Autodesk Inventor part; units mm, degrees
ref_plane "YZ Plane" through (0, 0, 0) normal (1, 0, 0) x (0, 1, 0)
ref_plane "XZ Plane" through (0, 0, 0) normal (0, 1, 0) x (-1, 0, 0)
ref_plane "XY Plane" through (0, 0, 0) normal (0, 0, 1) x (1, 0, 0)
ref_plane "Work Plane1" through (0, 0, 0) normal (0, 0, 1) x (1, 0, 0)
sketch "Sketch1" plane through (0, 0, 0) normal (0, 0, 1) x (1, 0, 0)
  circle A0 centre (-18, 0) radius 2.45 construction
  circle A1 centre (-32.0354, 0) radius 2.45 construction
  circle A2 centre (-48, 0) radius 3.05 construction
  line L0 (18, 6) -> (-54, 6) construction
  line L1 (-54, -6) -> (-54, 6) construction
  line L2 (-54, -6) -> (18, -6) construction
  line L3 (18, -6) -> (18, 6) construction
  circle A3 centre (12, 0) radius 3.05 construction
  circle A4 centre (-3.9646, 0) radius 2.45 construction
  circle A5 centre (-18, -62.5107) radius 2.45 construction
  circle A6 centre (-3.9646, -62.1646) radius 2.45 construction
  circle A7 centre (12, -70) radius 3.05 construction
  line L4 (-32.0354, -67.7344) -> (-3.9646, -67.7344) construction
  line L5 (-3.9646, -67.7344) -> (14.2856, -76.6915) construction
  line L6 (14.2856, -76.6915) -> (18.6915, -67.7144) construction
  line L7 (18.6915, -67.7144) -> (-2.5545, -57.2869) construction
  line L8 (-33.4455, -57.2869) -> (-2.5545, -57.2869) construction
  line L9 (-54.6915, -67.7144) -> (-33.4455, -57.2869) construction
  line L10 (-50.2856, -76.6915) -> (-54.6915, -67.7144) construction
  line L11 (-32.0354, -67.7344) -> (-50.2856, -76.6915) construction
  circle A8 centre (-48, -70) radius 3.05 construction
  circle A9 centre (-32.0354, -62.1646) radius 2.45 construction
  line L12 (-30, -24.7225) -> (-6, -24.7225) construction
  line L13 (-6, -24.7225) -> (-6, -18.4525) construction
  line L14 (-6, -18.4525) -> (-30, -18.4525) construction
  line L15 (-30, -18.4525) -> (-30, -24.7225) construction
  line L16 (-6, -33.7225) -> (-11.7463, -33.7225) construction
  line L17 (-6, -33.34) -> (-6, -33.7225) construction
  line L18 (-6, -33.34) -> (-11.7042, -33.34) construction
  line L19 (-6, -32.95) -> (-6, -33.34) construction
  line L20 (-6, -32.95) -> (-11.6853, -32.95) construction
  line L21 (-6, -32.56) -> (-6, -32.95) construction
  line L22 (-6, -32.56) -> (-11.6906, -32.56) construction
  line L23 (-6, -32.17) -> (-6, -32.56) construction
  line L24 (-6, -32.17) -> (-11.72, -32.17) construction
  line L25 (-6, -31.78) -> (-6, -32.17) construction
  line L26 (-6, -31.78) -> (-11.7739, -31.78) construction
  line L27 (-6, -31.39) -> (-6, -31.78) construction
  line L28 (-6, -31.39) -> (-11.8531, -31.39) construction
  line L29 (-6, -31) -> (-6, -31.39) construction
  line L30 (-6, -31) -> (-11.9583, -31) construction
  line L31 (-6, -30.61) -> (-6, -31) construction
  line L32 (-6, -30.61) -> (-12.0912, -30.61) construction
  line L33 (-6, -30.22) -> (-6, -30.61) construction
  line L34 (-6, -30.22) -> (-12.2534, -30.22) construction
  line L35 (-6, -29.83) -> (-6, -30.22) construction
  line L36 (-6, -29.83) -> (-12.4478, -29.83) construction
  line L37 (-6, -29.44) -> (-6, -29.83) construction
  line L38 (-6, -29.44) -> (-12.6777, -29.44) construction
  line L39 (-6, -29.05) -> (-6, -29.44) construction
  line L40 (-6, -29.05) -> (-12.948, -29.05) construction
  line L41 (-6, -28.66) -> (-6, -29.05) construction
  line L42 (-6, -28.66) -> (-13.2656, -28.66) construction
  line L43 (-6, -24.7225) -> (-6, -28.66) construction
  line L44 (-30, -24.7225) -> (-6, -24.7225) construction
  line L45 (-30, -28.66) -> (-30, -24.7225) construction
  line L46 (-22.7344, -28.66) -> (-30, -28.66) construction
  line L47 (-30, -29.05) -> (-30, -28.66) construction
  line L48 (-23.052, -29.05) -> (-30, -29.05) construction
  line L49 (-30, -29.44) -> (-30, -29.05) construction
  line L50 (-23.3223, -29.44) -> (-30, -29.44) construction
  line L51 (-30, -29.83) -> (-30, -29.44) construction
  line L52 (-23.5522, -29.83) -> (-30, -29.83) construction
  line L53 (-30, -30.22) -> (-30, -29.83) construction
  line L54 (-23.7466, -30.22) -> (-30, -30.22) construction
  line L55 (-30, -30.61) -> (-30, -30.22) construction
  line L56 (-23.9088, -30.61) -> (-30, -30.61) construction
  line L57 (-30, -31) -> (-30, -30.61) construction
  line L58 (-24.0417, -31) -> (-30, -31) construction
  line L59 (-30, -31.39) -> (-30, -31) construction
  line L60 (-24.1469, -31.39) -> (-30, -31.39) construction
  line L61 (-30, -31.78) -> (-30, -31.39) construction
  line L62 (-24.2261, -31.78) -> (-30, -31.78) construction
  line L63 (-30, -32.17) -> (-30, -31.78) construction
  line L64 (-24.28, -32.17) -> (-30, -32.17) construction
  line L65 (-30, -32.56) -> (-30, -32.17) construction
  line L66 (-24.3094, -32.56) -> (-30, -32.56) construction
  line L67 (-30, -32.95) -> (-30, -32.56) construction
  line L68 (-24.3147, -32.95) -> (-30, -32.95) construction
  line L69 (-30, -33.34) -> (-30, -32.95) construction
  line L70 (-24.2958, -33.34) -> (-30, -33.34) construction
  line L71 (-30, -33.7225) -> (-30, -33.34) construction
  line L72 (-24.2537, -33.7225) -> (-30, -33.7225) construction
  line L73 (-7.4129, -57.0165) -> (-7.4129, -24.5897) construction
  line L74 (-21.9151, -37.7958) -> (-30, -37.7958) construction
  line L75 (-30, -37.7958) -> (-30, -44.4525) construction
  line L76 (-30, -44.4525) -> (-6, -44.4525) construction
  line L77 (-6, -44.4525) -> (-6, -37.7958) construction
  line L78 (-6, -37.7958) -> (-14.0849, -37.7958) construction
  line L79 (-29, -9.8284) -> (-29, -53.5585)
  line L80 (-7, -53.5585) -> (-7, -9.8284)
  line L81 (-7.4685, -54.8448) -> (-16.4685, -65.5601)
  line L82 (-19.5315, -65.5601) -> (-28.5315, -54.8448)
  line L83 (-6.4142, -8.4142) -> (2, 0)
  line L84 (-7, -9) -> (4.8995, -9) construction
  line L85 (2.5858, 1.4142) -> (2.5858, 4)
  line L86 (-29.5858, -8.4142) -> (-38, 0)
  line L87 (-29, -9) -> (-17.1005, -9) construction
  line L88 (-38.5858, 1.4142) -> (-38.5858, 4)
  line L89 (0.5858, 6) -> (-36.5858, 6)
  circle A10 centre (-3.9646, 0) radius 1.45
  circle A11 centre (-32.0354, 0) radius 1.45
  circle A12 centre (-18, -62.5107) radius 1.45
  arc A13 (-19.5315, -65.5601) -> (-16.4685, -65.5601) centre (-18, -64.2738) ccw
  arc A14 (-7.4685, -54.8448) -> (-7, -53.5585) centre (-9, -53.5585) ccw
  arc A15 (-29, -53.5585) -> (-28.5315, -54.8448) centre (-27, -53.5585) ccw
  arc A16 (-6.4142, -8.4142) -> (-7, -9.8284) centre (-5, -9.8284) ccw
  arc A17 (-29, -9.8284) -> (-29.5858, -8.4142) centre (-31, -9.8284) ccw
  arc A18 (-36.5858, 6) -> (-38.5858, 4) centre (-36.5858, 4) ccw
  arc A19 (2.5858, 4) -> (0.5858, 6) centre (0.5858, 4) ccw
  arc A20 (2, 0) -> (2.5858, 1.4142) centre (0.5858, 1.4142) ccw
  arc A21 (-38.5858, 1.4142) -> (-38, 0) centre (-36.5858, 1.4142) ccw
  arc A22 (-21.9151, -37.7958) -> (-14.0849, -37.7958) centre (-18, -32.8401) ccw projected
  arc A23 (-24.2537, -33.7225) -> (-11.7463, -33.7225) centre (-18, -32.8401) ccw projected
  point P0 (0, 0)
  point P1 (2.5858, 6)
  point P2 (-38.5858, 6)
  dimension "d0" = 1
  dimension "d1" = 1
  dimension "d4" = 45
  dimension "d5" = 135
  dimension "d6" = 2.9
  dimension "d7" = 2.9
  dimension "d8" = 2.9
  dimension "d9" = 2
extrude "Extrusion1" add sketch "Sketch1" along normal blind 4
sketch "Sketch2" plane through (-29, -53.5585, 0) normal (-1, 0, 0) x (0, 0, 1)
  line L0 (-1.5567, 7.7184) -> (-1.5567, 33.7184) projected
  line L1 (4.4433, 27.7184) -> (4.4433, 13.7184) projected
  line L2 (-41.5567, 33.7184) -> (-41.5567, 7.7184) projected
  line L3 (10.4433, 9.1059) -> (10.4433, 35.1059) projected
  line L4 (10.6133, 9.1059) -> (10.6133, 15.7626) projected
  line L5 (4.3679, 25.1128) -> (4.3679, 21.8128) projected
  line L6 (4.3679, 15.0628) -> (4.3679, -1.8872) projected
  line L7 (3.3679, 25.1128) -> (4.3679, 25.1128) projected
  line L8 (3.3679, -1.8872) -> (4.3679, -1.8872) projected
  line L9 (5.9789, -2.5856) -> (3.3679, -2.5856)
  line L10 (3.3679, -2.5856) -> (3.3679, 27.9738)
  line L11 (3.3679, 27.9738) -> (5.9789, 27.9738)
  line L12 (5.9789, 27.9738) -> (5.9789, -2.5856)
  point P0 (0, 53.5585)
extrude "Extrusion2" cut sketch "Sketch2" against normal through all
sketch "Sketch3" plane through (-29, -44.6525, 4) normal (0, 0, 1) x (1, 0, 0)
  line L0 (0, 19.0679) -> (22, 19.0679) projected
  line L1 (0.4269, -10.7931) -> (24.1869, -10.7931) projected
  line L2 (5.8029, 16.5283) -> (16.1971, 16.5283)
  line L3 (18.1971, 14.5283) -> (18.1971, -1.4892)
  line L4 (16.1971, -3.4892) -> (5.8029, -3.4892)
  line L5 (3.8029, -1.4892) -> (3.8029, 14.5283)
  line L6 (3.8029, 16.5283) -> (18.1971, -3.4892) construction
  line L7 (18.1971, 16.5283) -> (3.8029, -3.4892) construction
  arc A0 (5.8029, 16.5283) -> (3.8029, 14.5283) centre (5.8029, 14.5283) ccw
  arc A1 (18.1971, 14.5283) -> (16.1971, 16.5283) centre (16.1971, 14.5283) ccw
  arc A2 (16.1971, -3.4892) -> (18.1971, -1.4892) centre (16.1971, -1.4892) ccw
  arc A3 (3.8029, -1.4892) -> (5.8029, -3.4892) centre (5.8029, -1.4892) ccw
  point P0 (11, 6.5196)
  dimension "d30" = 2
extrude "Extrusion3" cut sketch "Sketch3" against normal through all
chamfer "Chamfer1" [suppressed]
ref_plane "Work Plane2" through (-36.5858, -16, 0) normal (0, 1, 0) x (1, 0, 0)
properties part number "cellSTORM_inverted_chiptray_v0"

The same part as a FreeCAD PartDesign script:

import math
import FreeCAD as App
import Part
import Sketcher
from FreeCAD import Vector


def add_polygon(sketch, points):
    """Adds a closed chain of lines whose ends are joined by coincident constraints."""
    first, n = sketch.GeometryCount, len(points)
    for a, b in zip(points, points[1:] + points[:1]):
        sketch.addGeometry(Part.LineSegment(App.Vector(*a, 0), App.Vector(*b, 0)), False)
    for i in range(n):
        sketch.addConstraint(Sketcher.Constraint("Coincident", first + i, 2, first + (i + 1) % n, 1))

doc = App.newDocument("Part")
body = doc.addObject("PartDesign::Body", "Body")

sketch1 = doc.addObject("Sketcher::SketchObject", "Sketch")
body.addObject(sketch1)
sketch1.AttachmentSupport = (doc.XY_Plane, [""])
sketch1.MapMode = "FlatFace"
sketch1.addGeometry([
    Part.ArcOfCircle(Part.Circle(Vector(-31, -9.8, 0), Vector(0, 0, 1), 2), math.radians(0), math.radians(45)),
    Part.LineSegment(Vector(-29, -9.8, 0), Vector(-29, -53.6, 0)),
    Part.ArcOfCircle(Part.Circle(Vector(-27, -53.6, 0), Vector(0, 0, 1), 2), math.radians(180), math.radians(220)),
    Part.LineSegment(Vector(-28.5, -54.8, 0), Vector(-19.5, -65.6, 0)),
    Part.ArcOfCircle(Part.Circle(Vector(-18, -64.3, 0), Vector(0, 0, 1), 2), math.radians(-140), math.radians(-40)),
    Part.LineSegment(Vector(-16.5, -65.6, 0), Vector(-7.5, -54.8, 0)),
    Part.ArcOfCircle(Part.Circle(Vector(-9, -53.6, 0), Vector(0, 0, 1), 2), math.radians(-40), math.radians(0)),
    Part.LineSegment(Vector(-7, -53.6, 0), Vector(-7, -9.8, 0)),
    Part.ArcOfCircle(Part.Circle(Vector(-5, -9.8, 0), Vector(0, 0, 1), 2), math.radians(135), math.radians(180)),
    Part.LineSegment(Vector(-6.4, -8.4, 0), Vector(2, 0, 0)),
    Part.ArcOfCircle(Part.Circle(Vector(0.6, 1.4, 0), Vector(0, 0, 1), 2), math.radians(-45), math.radians(0)),
    Part.LineSegment(Vector(2.6, 1.4, 0), Vector(2.6, 4, 0)),
    Part.ArcOfCircle(Part.Circle(Vector(0.6, 4, 0), Vector(0, 0, 1), 2), math.radians(0), math.radians(90)),
    Part.LineSegment(Vector(0.6, 6, 0), Vector(-36.6, 6, 0)),
    Part.ArcOfCircle(Part.Circle(Vector(-36.6, 4, 0), Vector(0, 0, 1), 2), math.radians(90), math.radians(180)),
    Part.LineSegment(Vector(-38.6, 4, 0), Vector(-38.6, 1.4, 0)),
    Part.ArcOfCircle(Part.Circle(Vector(-36.6, 1.4, 0), Vector(0, 0, 1), 2), math.radians(180), math.radians(225)),
    Part.LineSegment(Vector(-38, 0, 0), Vector(-29.6, -8.4, 0)),
    Part.Circle(Vector(-18, -62.5, 0), Vector(0, 0, 1), 1.4),
    Part.Circle(Vector(-32, 0, 0), Vector(0, 0, 1), 1.4),
    Part.Circle(Vector(-4, 0, 0), Vector(0, 0, 1), 1.4),
], False)
sketch1.addConstraint([
    Sketcher.Constraint("Tangent", 0, 1, 1, 1),
    Sketcher.Constraint("Tangent", 1, 2, 2, 1),
    Sketcher.Constraint("Tangent", 2, 2, 3, 1),
    Sketcher.Constraint("Tangent", 3, 2, 4, 1),
    Sketcher.Constraint("Tangent", 4, 2, 5, 1),
    Sketcher.Constraint("Tangent", 5, 2, 6, 1),
    Sketcher.Constraint("Tangent", 6, 2, 7, 1),
    Sketcher.Constraint("Tangent", 7, 2, 8, 2),
    Sketcher.Constraint("Tangent", 8, 1, 9, 1),
    Sketcher.Constraint("Tangent", 9, 2, 10, 1),
    Sketcher.Constraint("Tangent", 10, 2, 11, 1),
    Sketcher.Constraint("Tangent", 11, 2, 12, 1),
    Sketcher.Constraint("Tangent", 12, 2, 13, 1),
    Sketcher.Constraint("Tangent", 13, 2, 14, 1),
    Sketcher.Constraint("Tangent", 14, 2, 15, 1),
    Sketcher.Constraint("Tangent", 15, 2, 16, 1),
    Sketcher.Constraint("Tangent", 16, 2, 17, 1),
    Sketcher.Constraint("Tangent", 17, 2, 0, 2),
    Sketcher.Constraint("Vertical", 1),
    Sketcher.Constraint("Vertical", 7),
    Sketcher.Constraint("Vertical", 11),
    Sketcher.Constraint("Horizontal", 13),
    Sketcher.Constraint("Vertical", 15),
    Sketcher.Constraint("Equal", 0, 2),
    Sketcher.Constraint("Equal", 2, 4),
    Sketcher.Constraint("Equal", 4, 6),
    Sketcher.Constraint("Equal", 6, 8),
    Sketcher.Constraint("Equal", 8, 10),
    Sketcher.Constraint("Equal", 10, 12),
    Sketcher.Constraint("Equal", 12, 14),
    Sketcher.Constraint("Equal", 14, 16),
    Sketcher.Constraint("Equal", 18, 19),
    Sketcher.Constraint("Equal", 19, 20),
    Sketcher.Constraint("PointOnObject", 19, 3, -1),
    Sketcher.Constraint("PointOnObject", 20, 3, -1),
    Sketcher.Constraint("PointOnObject", 9, 2, -1),
    Sketcher.Constraint("PointOnObject", 16, 2, -1),
    Sketcher.Constraint("Perpendicular", 9, 17),
    Sketcher.Constraint("Horizontal", 2, 3, 6, 3),
    Sketcher.Constraint("Horizontal", 0, 3, 8, 3),
    Sketcher.Constraint("Horizontal", 10, 3, 16, 3),
    Sketcher.Constraint("Horizontal", 3, 2, 4, 2),
    Sketcher.Constraint("Vertical", 4, 3, 18, 3),
    Sketcher.Constraint("Radius", 0, 2.0),
    Sketcher.Constraint("Diameter", 18, 2.9),
    Sketcher.Constraint("DistanceX", -1, 1, 9, 2, 2.0),
    Sketcher.Constraint("DistanceX", 0, 3, -1, 1, 31.0),
    Sketcher.Constraint("DistanceX", 4, 3, -1, 1, 18.0),
    Sketcher.Constraint("DistanceY", -1, 1, 12, 3, 4.0),
    Sketcher.Constraint("DistanceY", 1, 2, 1, 1, 43.73),
    Sketcher.Constraint("DistanceY", 3, 2, -1, 1, 65.56),
    Sketcher.Constraint("DistanceY", 4, 3, 18, 3, 1.763),
    Sketcher.Constraint("DistanceX", 19, 3, -1, 1, 32.0354),
    Sketcher.Constraint("DistanceX", 20, 3, -1, 1, 3.9646),
])
pad1 = doc.addObject("PartDesign::Pad", "Pad")
body.addObject(pad1)
pad1.Profile = sketch1
pad1.Length = 4

sketch2 = doc.addObject("Sketcher::SketchObject", "Sketch001")
body.addObject(sketch2)
sketch2.AttachmentSupport = (doc.YZ_Plane, [""])
sketch2.MapMode = "FlatFace"
sketch2.AttachmentOffset = App.Placement(Vector(0, 0, -29), App.Rotation())
add_polygon(sketch2, [(-56.1, 3.4), (-56.1, 6), (-25.6, 6), (-25.6, 3.4)])
sketch2.addConstraint([
    Sketcher.Constraint("Vertical", 0),
    Sketcher.Constraint("Horizontal", 1),
    Sketcher.Constraint("Vertical", 2),
    Sketcher.Constraint("Horizontal", 3),
    Sketcher.Constraint("DistanceY", 0, 1, 0, 2, 2.611),
    Sketcher.Constraint("DistanceX", 1, 1, 1, 2, 30.5594),
    Sketcher.Constraint("DistanceX", 0, 2, -1, 1, 56.144),
    Sketcher.Constraint("DistanceY", -1, 1, 0, 2, 5.979),
])
pocket1 = doc.addObject("PartDesign::Pocket", "Pocket")
body.addObject(pocket1)
pocket1.Profile = sketch2
pocket1.Type = "ThroughAll"
pocket1.Reversed = True

sketch3 = doc.addObject("Sketcher::SketchObject", "Sketch002")
body.addObject(sketch3)
sketch3.AttachmentSupport = (doc.XY_Plane, [""])
sketch3.MapMode = "FlatFace"
sketch3.AttachmentOffset = App.Placement(Vector(0, 0, 4), App.Rotation())
sketch3.addGeometry([
    Part.LineSegment(Vector(-12.8, -28.1, 0), Vector(-23.2, -28.1, 0)),
    Part.ArcOfCircle(Part.Circle(Vector(-23.2, -30.1, 0), Vector(0, 0, 1), 2), math.radians(90), math.radians(180)),
    Part.LineSegment(Vector(-25.2, -30.1, 0), Vector(-25.2, -46.1, 0)),
    Part.ArcOfCircle(Part.Circle(Vector(-23.2, -46.1, 0), Vector(0, 0, 1), 2), math.radians(180), math.radians(270)),
    Part.LineSegment(Vector(-23.2, -48.1, 0), Vector(-12.8, -48.1, 0)),
    Part.ArcOfCircle(Part.Circle(Vector(-12.8, -46.1, 0), Vector(0, 0, 1), 2), math.radians(-90), math.radians(0)),
    Part.LineSegment(Vector(-10.8, -46.1, 0), Vector(-10.8, -30.1, 0)),
    Part.ArcOfCircle(Part.Circle(Vector(-12.8, -30.1, 0), Vector(0, 0, 1), 2), math.radians(0), math.radians(90)),
], False)
sketch3.addConstraint([
    Sketcher.Constraint("Tangent", 0, 2, 1, 1),
    Sketcher.Constraint("Tangent", 1, 2, 2, 1),
    Sketcher.Constraint("Tangent", 2, 2, 3, 1),
    Sketcher.Constraint("Tangent", 3, 2, 4, 1),
    Sketcher.Constraint("Tangent", 4, 2, 5, 1),
    Sketcher.Constraint("Tangent", 5, 2, 6, 1),
    Sketcher.Constraint("Tangent", 6, 2, 7, 1),
    Sketcher.Constraint("Tangent", 7, 2, 0, 1),
    Sketcher.Constraint("Horizontal", 0),
    Sketcher.Constraint("Vertical", 2),
    Sketcher.Constraint("Horizontal", 4),
    Sketcher.Constraint("Vertical", 6),
    Sketcher.Constraint("Equal", 1, 3),
    Sketcher.Constraint("Equal", 3, 5),
    Sketcher.Constraint("Equal", 5, 7),
    Sketcher.Constraint("Radius", 1, 2.0),
    Sketcher.Constraint("DistanceX", 0, 2, 0, 1, 10.3942),
    Sketcher.Constraint("DistanceY", 2, 2, 2, 1, 16.0175),
    Sketcher.Constraint("DistanceX", 1, 3, -1, 1, 23.197),
    Sketcher.Constraint("DistanceY", 1, 3, -1, 1, 30.1242),
])
pocket2 = doc.addObject("PartDesign::Pocket", "Pocket001")
body.addObject(pocket2)
pocket2.Profile = sketch3
pocket2.Type = "ThroughAll"

doc.recompute()
